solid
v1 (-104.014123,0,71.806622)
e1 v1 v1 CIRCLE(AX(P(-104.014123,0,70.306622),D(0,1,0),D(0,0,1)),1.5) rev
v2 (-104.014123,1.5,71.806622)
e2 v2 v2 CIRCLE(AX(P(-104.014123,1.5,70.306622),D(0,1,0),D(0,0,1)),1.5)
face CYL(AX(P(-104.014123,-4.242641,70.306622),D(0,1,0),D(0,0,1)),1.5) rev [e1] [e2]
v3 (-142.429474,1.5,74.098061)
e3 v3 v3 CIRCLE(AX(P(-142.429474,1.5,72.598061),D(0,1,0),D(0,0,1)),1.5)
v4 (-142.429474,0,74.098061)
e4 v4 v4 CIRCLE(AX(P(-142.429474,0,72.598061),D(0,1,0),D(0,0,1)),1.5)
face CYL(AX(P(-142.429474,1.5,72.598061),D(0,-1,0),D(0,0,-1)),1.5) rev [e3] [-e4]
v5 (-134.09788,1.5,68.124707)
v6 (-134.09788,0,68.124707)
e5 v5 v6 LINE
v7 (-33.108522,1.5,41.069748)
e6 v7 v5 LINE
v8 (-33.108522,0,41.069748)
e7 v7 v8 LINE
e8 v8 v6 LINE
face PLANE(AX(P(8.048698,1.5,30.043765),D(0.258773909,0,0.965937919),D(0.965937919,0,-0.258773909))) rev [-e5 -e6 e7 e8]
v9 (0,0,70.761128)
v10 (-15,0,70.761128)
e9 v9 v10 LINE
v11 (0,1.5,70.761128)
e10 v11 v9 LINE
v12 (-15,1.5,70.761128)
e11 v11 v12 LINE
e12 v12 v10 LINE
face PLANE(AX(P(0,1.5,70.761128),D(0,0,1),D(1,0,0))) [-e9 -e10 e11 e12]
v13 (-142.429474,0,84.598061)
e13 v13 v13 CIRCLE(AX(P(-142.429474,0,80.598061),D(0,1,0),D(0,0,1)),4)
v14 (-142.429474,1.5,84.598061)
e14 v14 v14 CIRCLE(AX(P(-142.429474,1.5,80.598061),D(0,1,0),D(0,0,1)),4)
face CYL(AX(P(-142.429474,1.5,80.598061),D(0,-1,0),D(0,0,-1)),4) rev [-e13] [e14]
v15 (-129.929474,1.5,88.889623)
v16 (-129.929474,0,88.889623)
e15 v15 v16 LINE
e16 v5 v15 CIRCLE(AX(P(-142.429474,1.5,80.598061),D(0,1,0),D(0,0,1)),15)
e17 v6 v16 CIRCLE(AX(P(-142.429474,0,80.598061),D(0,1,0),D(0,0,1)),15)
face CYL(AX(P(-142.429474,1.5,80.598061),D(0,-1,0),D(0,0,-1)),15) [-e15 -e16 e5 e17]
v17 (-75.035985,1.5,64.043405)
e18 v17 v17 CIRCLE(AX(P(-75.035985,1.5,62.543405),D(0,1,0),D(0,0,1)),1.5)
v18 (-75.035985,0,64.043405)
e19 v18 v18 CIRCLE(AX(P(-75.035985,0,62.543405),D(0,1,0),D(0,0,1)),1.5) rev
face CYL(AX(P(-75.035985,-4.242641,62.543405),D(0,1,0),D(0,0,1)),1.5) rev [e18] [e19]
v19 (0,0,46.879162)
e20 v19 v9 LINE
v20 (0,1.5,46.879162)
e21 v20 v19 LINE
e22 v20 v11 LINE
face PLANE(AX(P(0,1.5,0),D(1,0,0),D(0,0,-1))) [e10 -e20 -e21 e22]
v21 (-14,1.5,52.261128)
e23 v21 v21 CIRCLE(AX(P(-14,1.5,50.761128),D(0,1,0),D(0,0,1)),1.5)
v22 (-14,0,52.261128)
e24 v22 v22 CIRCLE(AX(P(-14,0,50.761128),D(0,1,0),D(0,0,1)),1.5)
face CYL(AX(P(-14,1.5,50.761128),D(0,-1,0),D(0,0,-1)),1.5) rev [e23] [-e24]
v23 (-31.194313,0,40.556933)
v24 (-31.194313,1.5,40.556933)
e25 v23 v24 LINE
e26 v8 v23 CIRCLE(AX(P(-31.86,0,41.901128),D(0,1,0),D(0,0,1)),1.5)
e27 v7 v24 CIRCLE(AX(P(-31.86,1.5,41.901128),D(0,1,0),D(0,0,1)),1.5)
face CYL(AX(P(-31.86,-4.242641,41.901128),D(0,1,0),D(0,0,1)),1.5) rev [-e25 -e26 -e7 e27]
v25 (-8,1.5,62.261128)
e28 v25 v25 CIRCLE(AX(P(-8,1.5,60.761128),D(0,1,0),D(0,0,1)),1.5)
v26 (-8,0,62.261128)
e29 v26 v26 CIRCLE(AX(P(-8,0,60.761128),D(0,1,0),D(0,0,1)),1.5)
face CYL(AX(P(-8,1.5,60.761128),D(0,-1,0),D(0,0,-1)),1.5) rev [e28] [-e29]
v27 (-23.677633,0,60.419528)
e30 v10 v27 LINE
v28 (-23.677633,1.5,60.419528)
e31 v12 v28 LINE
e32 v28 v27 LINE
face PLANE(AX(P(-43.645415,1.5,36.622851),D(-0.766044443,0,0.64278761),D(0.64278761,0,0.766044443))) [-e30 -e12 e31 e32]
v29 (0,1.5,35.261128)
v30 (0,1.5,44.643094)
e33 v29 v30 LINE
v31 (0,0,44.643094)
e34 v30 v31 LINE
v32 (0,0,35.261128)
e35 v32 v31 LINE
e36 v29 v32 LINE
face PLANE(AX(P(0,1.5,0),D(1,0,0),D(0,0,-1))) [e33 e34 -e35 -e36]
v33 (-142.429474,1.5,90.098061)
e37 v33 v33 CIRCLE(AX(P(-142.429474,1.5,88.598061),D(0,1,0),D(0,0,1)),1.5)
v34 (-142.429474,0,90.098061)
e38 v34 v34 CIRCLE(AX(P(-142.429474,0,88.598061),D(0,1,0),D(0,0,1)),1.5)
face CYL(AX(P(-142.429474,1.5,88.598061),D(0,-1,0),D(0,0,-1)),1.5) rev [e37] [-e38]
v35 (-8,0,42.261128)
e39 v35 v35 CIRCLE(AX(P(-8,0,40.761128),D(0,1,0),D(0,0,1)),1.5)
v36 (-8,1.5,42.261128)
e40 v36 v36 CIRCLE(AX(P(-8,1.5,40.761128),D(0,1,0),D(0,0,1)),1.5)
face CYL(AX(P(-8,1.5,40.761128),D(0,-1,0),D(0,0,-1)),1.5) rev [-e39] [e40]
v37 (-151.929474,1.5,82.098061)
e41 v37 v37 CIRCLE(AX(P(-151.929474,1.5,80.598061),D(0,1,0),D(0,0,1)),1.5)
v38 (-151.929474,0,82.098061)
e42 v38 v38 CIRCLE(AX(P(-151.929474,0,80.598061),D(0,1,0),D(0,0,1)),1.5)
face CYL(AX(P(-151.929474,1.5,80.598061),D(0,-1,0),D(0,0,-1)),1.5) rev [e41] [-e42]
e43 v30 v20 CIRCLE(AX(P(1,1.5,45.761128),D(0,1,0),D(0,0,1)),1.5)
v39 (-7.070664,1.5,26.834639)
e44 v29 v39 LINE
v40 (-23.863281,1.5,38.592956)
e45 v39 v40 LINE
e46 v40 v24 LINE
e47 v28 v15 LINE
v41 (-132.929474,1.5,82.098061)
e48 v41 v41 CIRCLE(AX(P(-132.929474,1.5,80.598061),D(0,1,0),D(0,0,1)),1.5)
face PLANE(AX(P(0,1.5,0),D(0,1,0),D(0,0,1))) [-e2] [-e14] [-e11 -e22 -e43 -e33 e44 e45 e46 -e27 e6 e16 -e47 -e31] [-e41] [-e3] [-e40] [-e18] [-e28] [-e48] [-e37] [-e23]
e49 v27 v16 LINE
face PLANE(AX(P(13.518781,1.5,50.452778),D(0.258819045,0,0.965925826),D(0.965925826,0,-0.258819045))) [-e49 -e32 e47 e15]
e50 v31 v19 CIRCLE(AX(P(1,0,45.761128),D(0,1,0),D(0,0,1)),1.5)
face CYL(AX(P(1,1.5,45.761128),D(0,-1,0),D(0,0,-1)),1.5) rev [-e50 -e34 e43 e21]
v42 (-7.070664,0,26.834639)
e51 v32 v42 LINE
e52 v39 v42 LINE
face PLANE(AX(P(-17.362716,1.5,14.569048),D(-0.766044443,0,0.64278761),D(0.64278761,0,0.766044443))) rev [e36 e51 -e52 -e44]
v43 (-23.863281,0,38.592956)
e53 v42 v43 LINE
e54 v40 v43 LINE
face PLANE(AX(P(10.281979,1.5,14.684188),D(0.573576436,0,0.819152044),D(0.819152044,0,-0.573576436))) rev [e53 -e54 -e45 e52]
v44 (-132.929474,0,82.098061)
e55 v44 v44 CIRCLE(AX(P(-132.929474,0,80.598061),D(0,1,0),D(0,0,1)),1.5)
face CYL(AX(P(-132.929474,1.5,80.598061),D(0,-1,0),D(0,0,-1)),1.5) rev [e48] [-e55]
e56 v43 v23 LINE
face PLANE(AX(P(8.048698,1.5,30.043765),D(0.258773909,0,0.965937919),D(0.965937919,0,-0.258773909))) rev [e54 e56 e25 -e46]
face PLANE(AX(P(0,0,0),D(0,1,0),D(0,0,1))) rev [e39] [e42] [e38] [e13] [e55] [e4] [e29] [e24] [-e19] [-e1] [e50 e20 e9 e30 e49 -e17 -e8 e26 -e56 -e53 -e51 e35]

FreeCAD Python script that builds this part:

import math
import FreeCAD as App
import Part
import Sketcher
from FreeCAD import Vector
Q = App.Units.Quantity

doc = App.newDocument("Part")
params = doc.addObject("Spreadsheet::Sheet", "Params")
for row, (alias, value) in enumerate([
    ("sketch1_diameter", "3 mm"),
    ("sketch1_diameter2", "8 mm"),
    ("sketch1_radius", "15 mm"),
    ("sketch1_width", "15 mm"),
    ("sketch1_length", "11 mm"),
    ("pad1_length", "1.5 mm"),
    ("sketch2_diameter", "3 mm"),
    ("pocket1_length", "1.5 mm"),
    ("sketch3_diameter", "3 mm"),
    ("pocket2_length", "1.5 mm"),
], start=1):
    params.set(f"A{row}", alias)
    params.set(f"B{row}", "=" + value)
    params.setAlias(f"B{row}", alias)

body = doc.addObject("PartDesign::Body", "Body")

# Sketch on XZ plane
sketch1 = doc.addObject("Sketcher::SketchObject", "Sketch")
body.addObject(sketch1)
sketch1.AttachmentSupport = (doc.XZ_Plane, [""])
sketch1.MapMode = "FlatFace"
sketch1.addGeometry([
    Part.LineSegment(Vector(0, 44.643094, 0), Vector(0, 35.261128, 0)),  # 0
    Part.LineSegment(Vector(0, 35.261128, 0), Vector(-7.070664, 26.834639, 0)),  # 1
    Part.LineSegment(Vector(-7.070664, 26.834639, 0), Vector(-23.863281, 38.592956, 0)),  # 2
    Part.LineSegment(Vector(-23.863281, 38.592956, 0), Vector(-134.09788, 68.124707, 0)),  # 3
    Part.ArcOfCircle(Part.Circle(Vector(-142.429474, 80.598061, 0), Vector(0, 0, 1), 15), math.radians(33.55731), math.radians(303.740995)),  # 4
    Part.LineSegment(Vector(-129.929474, 88.889623, 0), Vector(-23.677633, 60.419528, 0)),  # 5
    Part.LineSegment(Vector(-23.677633, 60.419528, 0), Vector(-15, 70.761128, 0)),  # 6
    Part.LineSegment(Vector(-15, 70.761128, 0), Vector(0, 70.761128, 0)),  # 7
    Part.LineSegment(Vector(0, 70.761128, 0), Vector(0, 46.879162, 0)),  # 8
    Part.ArcOfCircle(Part.Circle(Vector(1, 45.761128, 0), Vector(0, 0, 1), 1.5), math.radians(131.810315), math.radians(228.189685)),  # 9
    Part.Circle(Vector(-142.429474, 88.598061, 0), Vector(0, 0, 1), 1.5),  # 10
    Part.Circle(Vector(-132.929474, 80.598061, 0), Vector(0, 0, 1), 1.5),  # 11
    Part.Circle(Vector(-142.429474, 80.598061, 0), Vector(0, 0, 1), 4),  # 12
    Part.Circle(Vector(-151.929474, 80.598061, 0), Vector(0, 0, 1), 1.5),  # 13
    Part.Circle(Vector(-142.429474, 72.598061, 0), Vector(0, 0, 1), 1.5),  # 14
    Part.Circle(Vector(-8, 60.761128, 0), Vector(0, 0, 1), 1.5),  # 15
    Part.Circle(Vector(-14, 50.761128, 0), Vector(0, 0, 1), 1.5),  # 16
    Part.Circle(Vector(-8, 40.761128, 0), Vector(0, 0, 1), 1.5),  # 17
], False)
sketch1.addConstraint([
    Sketcher.Constraint("Coincident", 0, 2, 1, 1),
    Sketcher.Constraint("Coincident", 1, 2, 2, 1),
    Sketcher.Constraint("Coincident", 2, 2, 3, 1),
    Sketcher.Constraint("Coincident", 3, 2, 4, 2),
    Sketcher.Constraint("Coincident", 4, 1, 5, 1),
    Sketcher.Constraint("Coincident", 5, 2, 6, 1),
    Sketcher.Constraint("Coincident", 6, 2, 7, 1),
    Sketcher.Constraint("Coincident", 7, 2, 8, 1),
    Sketcher.Constraint("Coincident", 8, 2, 9, 1),
    Sketcher.Constraint("Coincident", 9, 2, 0, 1),
    Sketcher.Constraint("Vertical", 0),
    Sketcher.Constraint("Horizontal", 7),
    Sketcher.Constraint("Vertical", 8),
    Sketcher.Constraint("Coincident", 12, 3, 4, 3),
    Sketcher.Constraint("Equal", 9, 10),
    Sketcher.Constraint("Equal", 10, 11),
    Sketcher.Constraint("Equal", 11, 13),
    Sketcher.Constraint("Equal", 13, 14),
    Sketcher.Constraint("Equal", 14, 15),
    Sketcher.Constraint("Equal", 15, 16),
    Sketcher.Constraint("Equal", 16, 17),
    Sketcher.Constraint("PointOnObject", 0, 2, -2),
    Sketcher.Constraint("PointOnObject", 7, 2, -2),
    Sketcher.Constraint("Parallel", 1, 6),
    Sketcher.Constraint("Horizontal", 4, 3, 11, 3),
    Sketcher.Constraint("Horizontal", 12, 3, 13, 3),
    Sketcher.Constraint("Vertical", 4, 3, 10, 3),
    Sketcher.Constraint("Vertical", 12, 3, 14, 3),
    Sketcher.Constraint("Vertical", 15, 3, 17, 3),
    Sketcher.Constraint("Diameter", 10, Q("3 mm")),
    Sketcher.Constraint("Diameter", 12, Q("8 mm")),
    Sketcher.Constraint("Radius", 4, Q("15 mm")),
    Sketcher.Constraint("DistanceX", 7, 1, 7, 2, Q("15 mm")),
    Sketcher.Constraint("Angle", 1, Q("-130 deg")),
    Sketcher.Constraint("Angle", 2, Q("145 deg")),
    Sketcher.Constraint("Angle", 5, Q("-15 deg")),
    Sketcher.Constraint("Distance", 1, Q("11 mm")),
    Sketcher.Constraint("Distance", 5, Q("110 mm")),
    Sketcher.Constraint("DistanceX", -1, 1, 9, 3, Q("1 mm")),
    Sketcher.Constraint("DistanceX", 15, 3, -1, 1, Q("8 mm")),
    Sketcher.Constraint("DistanceX", 16, 3, -1, 1, Q("14 mm")),
    Sketcher.Constraint("DistanceY", 4, 3, 10, 3, Q("8 mm")),
    Sketcher.Constraint("DistanceX", 13, 3, 11, 3, Q("19 mm")),
    Sketcher.Constraint("DistanceY", 14, 3, 4, 3, Q("8 mm")),
    Sketcher.Constraint("DistanceY", 9, 3, 15, 3, Q("15 mm")),
    Sketcher.Constraint("DistanceY", 16, 3, 15, 3, Q("10 mm")),
    Sketcher.Constraint("DistanceY", 17, 3, 9, 3, Q("5 mm")),
    Sketcher.Constraint("DistanceX", 11, 3, 4, 1, Q("3 mm")),
    Sketcher.Constraint("DistanceY", 15, 3, 6, 2, Q("10 mm")),
    Sketcher.Constraint("Distance", 2, Q("20.5 mm")),
    Sketcher.Constraint("Distance", 6, Q("13.5 mm")),
    Sketcher.Constraint("DistanceX", 4, 3, 11, 3, Q("9.5 mm")),
    Sketcher.Constraint("DistanceY", 0, 2, 17, 3, Q("5.5 mm")),
    Sketcher.Constraint("DistanceY", -1, 1, 4, 3, Q("80.598061 mm")),
    Sketcher.Constraint("DistanceX", 3, 2, -1, 1, Q("134.09788 mm")),
])
sketch1.setExpression("Constraints[29]", "Params.sketch1_diameter")
sketch1.setExpression("Constraints[30]", "Params.sketch1_diameter2")
sketch1.setExpression("Constraints[31]", "Params.sketch1_radius")
sketch1.setExpression("Constraints[32]", "Params.sketch1_width")
sketch1.setExpression("Constraints[36]", "Params.sketch1_length")
pad1 = doc.addObject("PartDesign::Pad", "Pad")
body.addObject(pad1)
pad1.Profile = sketch1
pad1.setExpression("Length", "Params.pad1_length")
pad1.Reversed = True

# Sketch on XZ plane
sketch2 = doc.addObject("Sketcher::SketchObject", "Sketch001")
body.addObject(sketch2)
sketch2.AttachmentSupport = (doc.XZ_Plane, [""])
sketch2.MapMode = "FlatFace"
sketch2.AttachmentOffset = App.Placement(Vector(0, 0, -1.5), App.Rotation())
sketch2.addGeometry(Part.Circle(Vector(-31.86, 41.901128, 0), Vector(0, 0, 1), 1.5), False)
sketch2.addConstraint([
    Sketcher.Constraint("Diameter", 0, Q("3 mm")),
    Sketcher.Constraint("DistanceX", 0, 3, -1, 1, Q("31.86 mm")),
    Sketcher.Constraint("DistanceY", -1, 1, 0, 3, Q("41.901128 mm")),
])
sketch2.setExpression("Constraints[0]", "Params.sketch2_diameter")
pocket1 = doc.addObject("PartDesign::Pocket", "Pocket")
body.addObject(pocket1)
pocket1.Profile = sketch2
pocket1.setExpression("Length", "Params.pocket1_length")
pocket1.Reversed = True

# Sketch on XZ plane
sketch3 = doc.addObject("Sketcher::SketchObject", "Sketch002")
body.addObject(sketch3)
sketch3.AttachmentSupport = (doc.XZ_Plane, [""])
sketch3.MapMode = "FlatFace"
sketch3.AttachmentOffset = App.Placement(Vector(0, 0, -1.5), App.Rotation())
sketch3.addGeometry([
    Part.Circle(Vector(-104.014123, 70.306622, 0), Vector(0, 0, 1), 1.5),
    Part.Circle(Vector(-75.035985, 62.543405, 0), Vector(0, 0, 1), 1.5),
], False)
sketch3.addConstraint([
    Sketcher.Constraint("Equal", 0, 1),
    Sketcher.Constraint("Diameter", 0, Q("3 mm")),
    Sketcher.Constraint("DistanceX", 0, 3, -1, 1, Q("104.014123 mm")),
    Sketcher.Constraint("DistanceY", -1, 1, 0, 3, Q("70.306622 mm")),
    Sketcher.Constraint("DistanceX", 1, 3, -1, 1, Q("75.035985 mm")),
    Sketcher.Constraint("DistanceY", -1, 1, 1, 3, Q("62.543405 mm")),
])
sketch3.setExpression("Constraints[1]", "Params.sketch3_diameter")
pocket2 = doc.addObject("PartDesign::Pocket", "Pocket001")
body.addObject(pocket2)
pocket2.Profile = sketch3
pocket2.setExpression("Length", "Params.pocket2_length")
pocket2.Reversed = True

doc.recompute()
